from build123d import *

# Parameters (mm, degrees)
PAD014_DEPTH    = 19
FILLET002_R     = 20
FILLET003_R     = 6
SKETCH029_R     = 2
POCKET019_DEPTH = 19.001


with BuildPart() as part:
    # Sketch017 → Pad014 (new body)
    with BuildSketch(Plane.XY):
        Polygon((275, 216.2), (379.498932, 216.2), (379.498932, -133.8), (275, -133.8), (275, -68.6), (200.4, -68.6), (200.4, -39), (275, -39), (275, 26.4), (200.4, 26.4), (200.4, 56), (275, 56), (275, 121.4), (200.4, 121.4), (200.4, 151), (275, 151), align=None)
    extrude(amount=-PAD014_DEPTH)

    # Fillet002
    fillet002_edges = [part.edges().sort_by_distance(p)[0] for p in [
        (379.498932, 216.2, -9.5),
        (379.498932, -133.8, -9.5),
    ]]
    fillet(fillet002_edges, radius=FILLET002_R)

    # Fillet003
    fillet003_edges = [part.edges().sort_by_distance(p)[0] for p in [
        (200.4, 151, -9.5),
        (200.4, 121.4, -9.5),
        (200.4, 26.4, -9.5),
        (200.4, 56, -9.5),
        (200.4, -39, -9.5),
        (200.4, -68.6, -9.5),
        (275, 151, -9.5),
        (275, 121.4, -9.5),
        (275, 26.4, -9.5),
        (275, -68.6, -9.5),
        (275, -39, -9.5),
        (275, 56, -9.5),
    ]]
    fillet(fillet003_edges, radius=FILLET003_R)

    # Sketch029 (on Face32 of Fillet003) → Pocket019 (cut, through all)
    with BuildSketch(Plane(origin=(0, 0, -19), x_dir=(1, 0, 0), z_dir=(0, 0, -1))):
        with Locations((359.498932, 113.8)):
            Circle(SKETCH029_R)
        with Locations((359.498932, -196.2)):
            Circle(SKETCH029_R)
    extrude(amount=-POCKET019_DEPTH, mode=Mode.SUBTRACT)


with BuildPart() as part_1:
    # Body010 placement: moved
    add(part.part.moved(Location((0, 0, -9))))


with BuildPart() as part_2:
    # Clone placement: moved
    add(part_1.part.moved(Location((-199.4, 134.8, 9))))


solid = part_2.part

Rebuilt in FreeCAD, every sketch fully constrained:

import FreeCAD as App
import Part
import Sketcher

V = App.Vector


def edges_at(feature, points):
    """Names of the edges that pass closest to the given points."""
    edges = feature.Shape.Edges
    near = lambda p: min(range(len(edges)), key=lambda i: edges[i].distToShape(Part.Vertex(*p))[0])
    return sorted({f"Edge{near(p) + 1}" for p in points})

doc = App.newDocument("Part")
body = doc.addObject("PartDesign::Body", "Body")

# Sketch on XY plane
sketch1 = body.newObject("Sketcher::SketchObject", "Sketch")
sketch1.AttachmentSupport = (doc.getObject("XY_Plane"), [""])
sketch1.MapMode = "FlatFace"
sketch1.addGeometry([
    Part.LineSegment(V(379, 216, 0), V(275, 216, 0)),  # 0
    Part.LineSegment(V(275, 216, 0), V(275, 151, 0)),  # 1
    Part.LineSegment(V(275, 151, 0), V(200, 151, 0)),  # 2
    Part.LineSegment(V(200, 151, 0), V(200, 121, 0)),  # 3
    Part.LineSegment(V(200, 121, 0), V(275, 121, 0)),  # 4
    Part.LineSegment(V(275, 121, 0), V(275, 56, 0)),  # 5
    Part.LineSegment(V(275, 56, 0), V(200, 56, 0)),  # 6
    Part.LineSegment(V(200, 56, 0), V(200, 26, 0)),  # 7
    Part.LineSegment(V(200, 26, 0), V(275, 26, 0)),  # 8
    Part.LineSegment(V(275, 26, 0), V(275, -39, 0)),  # 9
    Part.LineSegment(V(275, -39, 0), V(200, -39, 0)),  # 10
    Part.LineSegment(V(200, -39, 0), V(200, -69, 0)),  # 11
    Part.LineSegment(V(200, -69, 0), V(275, -69, 0)),  # 12
    Part.LineSegment(V(275, -69, 0), V(275, -134, 0)),  # 13
    Part.LineSegment(V(275, -134, 0), V(379, -134, 0)),  # 14
    Part.LineSegment(V(379, -134, 0), V(379, 216, 0)),  # 15
], False)
sketch1.addConstraint([
    Sketcher.Constraint("Coincident", 0, 2, 1, 1),
    Sketcher.Constraint("Coincident", 1, 2, 2, 1),
    Sketcher.Constraint("Coincident", 2, 2, 3, 1),
    Sketcher.Constraint("Coincident", 3, 2, 4, 1),
    Sketcher.Constraint("Coincident", 4, 2, 5, 1),
    Sketcher.Constraint("Coincident", 5, 2, 6, 1),
    Sketcher.Constraint("Coincident", 6, 2, 7, 1),
    Sketcher.Constraint("Coincident", 7, 2, 8, 1),
    Sketcher.Constraint("Coincident", 8, 2, 9, 1),
    Sketcher.Constraint("Coincident", 9, 2, 10, 1),
    Sketcher.Constraint("Coincident", 10, 2, 11, 1),
    Sketcher.Constraint("Coincident", 11, 2, 12, 1),
    Sketcher.Constraint("Coincident", 12, 2, 13, 1),
    Sketcher.Constraint("Coincident", 13, 2, 14, 1),
    Sketcher.Constraint("Coincident", 14, 2, 15, 1),
    Sketcher.Constraint("Coincident", 15, 2, 0, 1),
    Sketcher.Constraint("Horizontal", 0),
    Sketcher.Constraint("Vertical", 1),
    Sketcher.Constraint("Horizontal", 2),
    Sketcher.Constraint("Vertical", 3),
    Sketcher.Constraint("Horizontal", 4),
    Sketcher.Constraint("Vertical", 5),
    Sketcher.Constraint("Horizontal", 6),
    Sketcher.Constraint("Vertical", 7),
    Sketcher.Constraint("Horizontal", 8),
    Sketcher.Constraint("Vertical", 9),
    Sketcher.Constraint("Horizontal", 10),
    Sketcher.Constraint("Vertical", 11),
    Sketcher.Constraint("Horizontal", 12),
    Sketcher.Constraint("Vertical", 13),
    Sketcher.Constraint("Horizontal", 14),
    Sketcher.Constraint("Vertical", 15),
    Sketcher.Constraint("Vertical", 1, 2, 4, 2),
    Sketcher.Constraint("Vertical", 3, 2, 6, 2),
    Sketcher.Constraint("Vertical", 5, 2, 8, 2),
    Sketcher.Constraint("Vertical", 7, 2, 10, 2),
    Sketcher.Constraint("Vertical", 9, 2, 12, 2),
    Sketcher.Constraint("Equal", 3, 7),
    Sketcher.Constraint("Equal", 5, 9),
    Sketcher.Constraint("Equal", 7, 11),
    Sketcher.Constraint("Equal", 1, 13),
    Sketcher.Constraint("DistanceY", 15, 1, 15, 2, 350.0),
    Sketcher.Constraint("DistanceX", 2, 2, 2, 1, 74.6),
    Sketcher.Constraint("DistanceY", 1, 2, 1, 1, 65.2),
    Sketcher.Constraint("DistanceY", 3, 2, 3, 1, 29.6),
    Sketcher.Constraint("DistanceX", -1, 1, 0, 2, 275.0),
    Sketcher.Constraint("DistanceY", -1, 1, 1, 2, 151.0),
    Sketcher.Constraint("DistanceX", 0, 2, 0, 1, 104.498932),
])
pad1 = body.newObject("PartDesign::Pad", "Pad")
pad1.Profile = sketch1
pad1.Length = 19
pad1.Reversed = True
doc.recompute()

fillet = body.newObject("PartDesign::Fillet", "Fillet")
fillet.Base = (pad1, edges_at(pad1, [(379.499, 216.2, -9.5), (379.499, -133.8, -9.5)]))
fillet.Radius = 20
doc.recompute()

fillet2 = body.newObject("PartDesign::Fillet", "Fillet001")
fillet2.Base = (fillet, edges_at(fillet, [
    (200.4, 151, -9.5),
    (200.4, 121.4, -9.5),
    (200.4, 26.4, -9.5),
    (200.4, 56, -9.5),
    (200.4, -39, -9.5),
    (200.4, -68.6, -9.5),
    (275, 151, -9.5),
    (275, 121.4, -9.5),
    (275, 26.4, -9.5),
    (275, -68.6, -9.5),
    (275, -39, -9.5),
    (275, 56, -9.5),
]))
fillet2.Radius = 6

# Sketch on XY plane
sketch2 = body.newObject("Sketcher::SketchObject", "Sketch001")
sketch2.AttachmentSupport = (doc.getObject("XY_Plane"), [""])
sketch2.MapMode = "FlatFace"
sketch2.AttachmentOffset = App.Placement(V(0, 0, -19), App.Rotation())
sketch2.addGeometry([
    Part.Circle(V(359.5, -113.8, 0), V(0, 0, 1), 2),
    Part.Circle(V(359.5, 196.2, 0), V(0, 0, 1), 2),
], False)
sketch2.addConstraint([
    Sketcher.Constraint("Equal", 0, 1),
    Sketcher.Constraint("Vertical", 0, 3, 1, 3),
    Sketcher.Constraint("Diameter", 0, 4.0),
    Sketcher.Constraint("DistanceY", 0, 3, 1, 3, 310.0),
    Sketcher.Constraint("DistanceY", 0, 3, -1, 1, 113.8),
    Sketcher.Constraint("DistanceX", -1, 1, 0, 3, 359.498932),
])
pocket1 = body.newObject("PartDesign::Pocket", "Pocket")
pocket1.Profile = sketch2
pocket1.Type = "ThroughAll"
pocket1.Reversed = True
body2 = doc.addObject("PartDesign::Body", "Body001")
doc.recompute()

body.Placement = App.Placement(V(0, 0, -9), App.Rotation(V(0, 0, 1), 0))
boolean = body2.newObject("PartDesign::Boolean", "Boolean")
boolean.Type = "Fuse"
boolean.addObjects([body])
body3 = doc.addObject("PartDesign::Body", "Body002")
doc.recompute()

body2.Placement = App.Placement(V(-199.4, 134.8, 9), App.Rotation(V(0, 0, 1), 0))
boolean2 = body3.newObject("PartDesign::Boolean", "Boolean001")
boolean2.Type = "Fuse"
boolean2.addObjects([body2])

doc.recompute()
